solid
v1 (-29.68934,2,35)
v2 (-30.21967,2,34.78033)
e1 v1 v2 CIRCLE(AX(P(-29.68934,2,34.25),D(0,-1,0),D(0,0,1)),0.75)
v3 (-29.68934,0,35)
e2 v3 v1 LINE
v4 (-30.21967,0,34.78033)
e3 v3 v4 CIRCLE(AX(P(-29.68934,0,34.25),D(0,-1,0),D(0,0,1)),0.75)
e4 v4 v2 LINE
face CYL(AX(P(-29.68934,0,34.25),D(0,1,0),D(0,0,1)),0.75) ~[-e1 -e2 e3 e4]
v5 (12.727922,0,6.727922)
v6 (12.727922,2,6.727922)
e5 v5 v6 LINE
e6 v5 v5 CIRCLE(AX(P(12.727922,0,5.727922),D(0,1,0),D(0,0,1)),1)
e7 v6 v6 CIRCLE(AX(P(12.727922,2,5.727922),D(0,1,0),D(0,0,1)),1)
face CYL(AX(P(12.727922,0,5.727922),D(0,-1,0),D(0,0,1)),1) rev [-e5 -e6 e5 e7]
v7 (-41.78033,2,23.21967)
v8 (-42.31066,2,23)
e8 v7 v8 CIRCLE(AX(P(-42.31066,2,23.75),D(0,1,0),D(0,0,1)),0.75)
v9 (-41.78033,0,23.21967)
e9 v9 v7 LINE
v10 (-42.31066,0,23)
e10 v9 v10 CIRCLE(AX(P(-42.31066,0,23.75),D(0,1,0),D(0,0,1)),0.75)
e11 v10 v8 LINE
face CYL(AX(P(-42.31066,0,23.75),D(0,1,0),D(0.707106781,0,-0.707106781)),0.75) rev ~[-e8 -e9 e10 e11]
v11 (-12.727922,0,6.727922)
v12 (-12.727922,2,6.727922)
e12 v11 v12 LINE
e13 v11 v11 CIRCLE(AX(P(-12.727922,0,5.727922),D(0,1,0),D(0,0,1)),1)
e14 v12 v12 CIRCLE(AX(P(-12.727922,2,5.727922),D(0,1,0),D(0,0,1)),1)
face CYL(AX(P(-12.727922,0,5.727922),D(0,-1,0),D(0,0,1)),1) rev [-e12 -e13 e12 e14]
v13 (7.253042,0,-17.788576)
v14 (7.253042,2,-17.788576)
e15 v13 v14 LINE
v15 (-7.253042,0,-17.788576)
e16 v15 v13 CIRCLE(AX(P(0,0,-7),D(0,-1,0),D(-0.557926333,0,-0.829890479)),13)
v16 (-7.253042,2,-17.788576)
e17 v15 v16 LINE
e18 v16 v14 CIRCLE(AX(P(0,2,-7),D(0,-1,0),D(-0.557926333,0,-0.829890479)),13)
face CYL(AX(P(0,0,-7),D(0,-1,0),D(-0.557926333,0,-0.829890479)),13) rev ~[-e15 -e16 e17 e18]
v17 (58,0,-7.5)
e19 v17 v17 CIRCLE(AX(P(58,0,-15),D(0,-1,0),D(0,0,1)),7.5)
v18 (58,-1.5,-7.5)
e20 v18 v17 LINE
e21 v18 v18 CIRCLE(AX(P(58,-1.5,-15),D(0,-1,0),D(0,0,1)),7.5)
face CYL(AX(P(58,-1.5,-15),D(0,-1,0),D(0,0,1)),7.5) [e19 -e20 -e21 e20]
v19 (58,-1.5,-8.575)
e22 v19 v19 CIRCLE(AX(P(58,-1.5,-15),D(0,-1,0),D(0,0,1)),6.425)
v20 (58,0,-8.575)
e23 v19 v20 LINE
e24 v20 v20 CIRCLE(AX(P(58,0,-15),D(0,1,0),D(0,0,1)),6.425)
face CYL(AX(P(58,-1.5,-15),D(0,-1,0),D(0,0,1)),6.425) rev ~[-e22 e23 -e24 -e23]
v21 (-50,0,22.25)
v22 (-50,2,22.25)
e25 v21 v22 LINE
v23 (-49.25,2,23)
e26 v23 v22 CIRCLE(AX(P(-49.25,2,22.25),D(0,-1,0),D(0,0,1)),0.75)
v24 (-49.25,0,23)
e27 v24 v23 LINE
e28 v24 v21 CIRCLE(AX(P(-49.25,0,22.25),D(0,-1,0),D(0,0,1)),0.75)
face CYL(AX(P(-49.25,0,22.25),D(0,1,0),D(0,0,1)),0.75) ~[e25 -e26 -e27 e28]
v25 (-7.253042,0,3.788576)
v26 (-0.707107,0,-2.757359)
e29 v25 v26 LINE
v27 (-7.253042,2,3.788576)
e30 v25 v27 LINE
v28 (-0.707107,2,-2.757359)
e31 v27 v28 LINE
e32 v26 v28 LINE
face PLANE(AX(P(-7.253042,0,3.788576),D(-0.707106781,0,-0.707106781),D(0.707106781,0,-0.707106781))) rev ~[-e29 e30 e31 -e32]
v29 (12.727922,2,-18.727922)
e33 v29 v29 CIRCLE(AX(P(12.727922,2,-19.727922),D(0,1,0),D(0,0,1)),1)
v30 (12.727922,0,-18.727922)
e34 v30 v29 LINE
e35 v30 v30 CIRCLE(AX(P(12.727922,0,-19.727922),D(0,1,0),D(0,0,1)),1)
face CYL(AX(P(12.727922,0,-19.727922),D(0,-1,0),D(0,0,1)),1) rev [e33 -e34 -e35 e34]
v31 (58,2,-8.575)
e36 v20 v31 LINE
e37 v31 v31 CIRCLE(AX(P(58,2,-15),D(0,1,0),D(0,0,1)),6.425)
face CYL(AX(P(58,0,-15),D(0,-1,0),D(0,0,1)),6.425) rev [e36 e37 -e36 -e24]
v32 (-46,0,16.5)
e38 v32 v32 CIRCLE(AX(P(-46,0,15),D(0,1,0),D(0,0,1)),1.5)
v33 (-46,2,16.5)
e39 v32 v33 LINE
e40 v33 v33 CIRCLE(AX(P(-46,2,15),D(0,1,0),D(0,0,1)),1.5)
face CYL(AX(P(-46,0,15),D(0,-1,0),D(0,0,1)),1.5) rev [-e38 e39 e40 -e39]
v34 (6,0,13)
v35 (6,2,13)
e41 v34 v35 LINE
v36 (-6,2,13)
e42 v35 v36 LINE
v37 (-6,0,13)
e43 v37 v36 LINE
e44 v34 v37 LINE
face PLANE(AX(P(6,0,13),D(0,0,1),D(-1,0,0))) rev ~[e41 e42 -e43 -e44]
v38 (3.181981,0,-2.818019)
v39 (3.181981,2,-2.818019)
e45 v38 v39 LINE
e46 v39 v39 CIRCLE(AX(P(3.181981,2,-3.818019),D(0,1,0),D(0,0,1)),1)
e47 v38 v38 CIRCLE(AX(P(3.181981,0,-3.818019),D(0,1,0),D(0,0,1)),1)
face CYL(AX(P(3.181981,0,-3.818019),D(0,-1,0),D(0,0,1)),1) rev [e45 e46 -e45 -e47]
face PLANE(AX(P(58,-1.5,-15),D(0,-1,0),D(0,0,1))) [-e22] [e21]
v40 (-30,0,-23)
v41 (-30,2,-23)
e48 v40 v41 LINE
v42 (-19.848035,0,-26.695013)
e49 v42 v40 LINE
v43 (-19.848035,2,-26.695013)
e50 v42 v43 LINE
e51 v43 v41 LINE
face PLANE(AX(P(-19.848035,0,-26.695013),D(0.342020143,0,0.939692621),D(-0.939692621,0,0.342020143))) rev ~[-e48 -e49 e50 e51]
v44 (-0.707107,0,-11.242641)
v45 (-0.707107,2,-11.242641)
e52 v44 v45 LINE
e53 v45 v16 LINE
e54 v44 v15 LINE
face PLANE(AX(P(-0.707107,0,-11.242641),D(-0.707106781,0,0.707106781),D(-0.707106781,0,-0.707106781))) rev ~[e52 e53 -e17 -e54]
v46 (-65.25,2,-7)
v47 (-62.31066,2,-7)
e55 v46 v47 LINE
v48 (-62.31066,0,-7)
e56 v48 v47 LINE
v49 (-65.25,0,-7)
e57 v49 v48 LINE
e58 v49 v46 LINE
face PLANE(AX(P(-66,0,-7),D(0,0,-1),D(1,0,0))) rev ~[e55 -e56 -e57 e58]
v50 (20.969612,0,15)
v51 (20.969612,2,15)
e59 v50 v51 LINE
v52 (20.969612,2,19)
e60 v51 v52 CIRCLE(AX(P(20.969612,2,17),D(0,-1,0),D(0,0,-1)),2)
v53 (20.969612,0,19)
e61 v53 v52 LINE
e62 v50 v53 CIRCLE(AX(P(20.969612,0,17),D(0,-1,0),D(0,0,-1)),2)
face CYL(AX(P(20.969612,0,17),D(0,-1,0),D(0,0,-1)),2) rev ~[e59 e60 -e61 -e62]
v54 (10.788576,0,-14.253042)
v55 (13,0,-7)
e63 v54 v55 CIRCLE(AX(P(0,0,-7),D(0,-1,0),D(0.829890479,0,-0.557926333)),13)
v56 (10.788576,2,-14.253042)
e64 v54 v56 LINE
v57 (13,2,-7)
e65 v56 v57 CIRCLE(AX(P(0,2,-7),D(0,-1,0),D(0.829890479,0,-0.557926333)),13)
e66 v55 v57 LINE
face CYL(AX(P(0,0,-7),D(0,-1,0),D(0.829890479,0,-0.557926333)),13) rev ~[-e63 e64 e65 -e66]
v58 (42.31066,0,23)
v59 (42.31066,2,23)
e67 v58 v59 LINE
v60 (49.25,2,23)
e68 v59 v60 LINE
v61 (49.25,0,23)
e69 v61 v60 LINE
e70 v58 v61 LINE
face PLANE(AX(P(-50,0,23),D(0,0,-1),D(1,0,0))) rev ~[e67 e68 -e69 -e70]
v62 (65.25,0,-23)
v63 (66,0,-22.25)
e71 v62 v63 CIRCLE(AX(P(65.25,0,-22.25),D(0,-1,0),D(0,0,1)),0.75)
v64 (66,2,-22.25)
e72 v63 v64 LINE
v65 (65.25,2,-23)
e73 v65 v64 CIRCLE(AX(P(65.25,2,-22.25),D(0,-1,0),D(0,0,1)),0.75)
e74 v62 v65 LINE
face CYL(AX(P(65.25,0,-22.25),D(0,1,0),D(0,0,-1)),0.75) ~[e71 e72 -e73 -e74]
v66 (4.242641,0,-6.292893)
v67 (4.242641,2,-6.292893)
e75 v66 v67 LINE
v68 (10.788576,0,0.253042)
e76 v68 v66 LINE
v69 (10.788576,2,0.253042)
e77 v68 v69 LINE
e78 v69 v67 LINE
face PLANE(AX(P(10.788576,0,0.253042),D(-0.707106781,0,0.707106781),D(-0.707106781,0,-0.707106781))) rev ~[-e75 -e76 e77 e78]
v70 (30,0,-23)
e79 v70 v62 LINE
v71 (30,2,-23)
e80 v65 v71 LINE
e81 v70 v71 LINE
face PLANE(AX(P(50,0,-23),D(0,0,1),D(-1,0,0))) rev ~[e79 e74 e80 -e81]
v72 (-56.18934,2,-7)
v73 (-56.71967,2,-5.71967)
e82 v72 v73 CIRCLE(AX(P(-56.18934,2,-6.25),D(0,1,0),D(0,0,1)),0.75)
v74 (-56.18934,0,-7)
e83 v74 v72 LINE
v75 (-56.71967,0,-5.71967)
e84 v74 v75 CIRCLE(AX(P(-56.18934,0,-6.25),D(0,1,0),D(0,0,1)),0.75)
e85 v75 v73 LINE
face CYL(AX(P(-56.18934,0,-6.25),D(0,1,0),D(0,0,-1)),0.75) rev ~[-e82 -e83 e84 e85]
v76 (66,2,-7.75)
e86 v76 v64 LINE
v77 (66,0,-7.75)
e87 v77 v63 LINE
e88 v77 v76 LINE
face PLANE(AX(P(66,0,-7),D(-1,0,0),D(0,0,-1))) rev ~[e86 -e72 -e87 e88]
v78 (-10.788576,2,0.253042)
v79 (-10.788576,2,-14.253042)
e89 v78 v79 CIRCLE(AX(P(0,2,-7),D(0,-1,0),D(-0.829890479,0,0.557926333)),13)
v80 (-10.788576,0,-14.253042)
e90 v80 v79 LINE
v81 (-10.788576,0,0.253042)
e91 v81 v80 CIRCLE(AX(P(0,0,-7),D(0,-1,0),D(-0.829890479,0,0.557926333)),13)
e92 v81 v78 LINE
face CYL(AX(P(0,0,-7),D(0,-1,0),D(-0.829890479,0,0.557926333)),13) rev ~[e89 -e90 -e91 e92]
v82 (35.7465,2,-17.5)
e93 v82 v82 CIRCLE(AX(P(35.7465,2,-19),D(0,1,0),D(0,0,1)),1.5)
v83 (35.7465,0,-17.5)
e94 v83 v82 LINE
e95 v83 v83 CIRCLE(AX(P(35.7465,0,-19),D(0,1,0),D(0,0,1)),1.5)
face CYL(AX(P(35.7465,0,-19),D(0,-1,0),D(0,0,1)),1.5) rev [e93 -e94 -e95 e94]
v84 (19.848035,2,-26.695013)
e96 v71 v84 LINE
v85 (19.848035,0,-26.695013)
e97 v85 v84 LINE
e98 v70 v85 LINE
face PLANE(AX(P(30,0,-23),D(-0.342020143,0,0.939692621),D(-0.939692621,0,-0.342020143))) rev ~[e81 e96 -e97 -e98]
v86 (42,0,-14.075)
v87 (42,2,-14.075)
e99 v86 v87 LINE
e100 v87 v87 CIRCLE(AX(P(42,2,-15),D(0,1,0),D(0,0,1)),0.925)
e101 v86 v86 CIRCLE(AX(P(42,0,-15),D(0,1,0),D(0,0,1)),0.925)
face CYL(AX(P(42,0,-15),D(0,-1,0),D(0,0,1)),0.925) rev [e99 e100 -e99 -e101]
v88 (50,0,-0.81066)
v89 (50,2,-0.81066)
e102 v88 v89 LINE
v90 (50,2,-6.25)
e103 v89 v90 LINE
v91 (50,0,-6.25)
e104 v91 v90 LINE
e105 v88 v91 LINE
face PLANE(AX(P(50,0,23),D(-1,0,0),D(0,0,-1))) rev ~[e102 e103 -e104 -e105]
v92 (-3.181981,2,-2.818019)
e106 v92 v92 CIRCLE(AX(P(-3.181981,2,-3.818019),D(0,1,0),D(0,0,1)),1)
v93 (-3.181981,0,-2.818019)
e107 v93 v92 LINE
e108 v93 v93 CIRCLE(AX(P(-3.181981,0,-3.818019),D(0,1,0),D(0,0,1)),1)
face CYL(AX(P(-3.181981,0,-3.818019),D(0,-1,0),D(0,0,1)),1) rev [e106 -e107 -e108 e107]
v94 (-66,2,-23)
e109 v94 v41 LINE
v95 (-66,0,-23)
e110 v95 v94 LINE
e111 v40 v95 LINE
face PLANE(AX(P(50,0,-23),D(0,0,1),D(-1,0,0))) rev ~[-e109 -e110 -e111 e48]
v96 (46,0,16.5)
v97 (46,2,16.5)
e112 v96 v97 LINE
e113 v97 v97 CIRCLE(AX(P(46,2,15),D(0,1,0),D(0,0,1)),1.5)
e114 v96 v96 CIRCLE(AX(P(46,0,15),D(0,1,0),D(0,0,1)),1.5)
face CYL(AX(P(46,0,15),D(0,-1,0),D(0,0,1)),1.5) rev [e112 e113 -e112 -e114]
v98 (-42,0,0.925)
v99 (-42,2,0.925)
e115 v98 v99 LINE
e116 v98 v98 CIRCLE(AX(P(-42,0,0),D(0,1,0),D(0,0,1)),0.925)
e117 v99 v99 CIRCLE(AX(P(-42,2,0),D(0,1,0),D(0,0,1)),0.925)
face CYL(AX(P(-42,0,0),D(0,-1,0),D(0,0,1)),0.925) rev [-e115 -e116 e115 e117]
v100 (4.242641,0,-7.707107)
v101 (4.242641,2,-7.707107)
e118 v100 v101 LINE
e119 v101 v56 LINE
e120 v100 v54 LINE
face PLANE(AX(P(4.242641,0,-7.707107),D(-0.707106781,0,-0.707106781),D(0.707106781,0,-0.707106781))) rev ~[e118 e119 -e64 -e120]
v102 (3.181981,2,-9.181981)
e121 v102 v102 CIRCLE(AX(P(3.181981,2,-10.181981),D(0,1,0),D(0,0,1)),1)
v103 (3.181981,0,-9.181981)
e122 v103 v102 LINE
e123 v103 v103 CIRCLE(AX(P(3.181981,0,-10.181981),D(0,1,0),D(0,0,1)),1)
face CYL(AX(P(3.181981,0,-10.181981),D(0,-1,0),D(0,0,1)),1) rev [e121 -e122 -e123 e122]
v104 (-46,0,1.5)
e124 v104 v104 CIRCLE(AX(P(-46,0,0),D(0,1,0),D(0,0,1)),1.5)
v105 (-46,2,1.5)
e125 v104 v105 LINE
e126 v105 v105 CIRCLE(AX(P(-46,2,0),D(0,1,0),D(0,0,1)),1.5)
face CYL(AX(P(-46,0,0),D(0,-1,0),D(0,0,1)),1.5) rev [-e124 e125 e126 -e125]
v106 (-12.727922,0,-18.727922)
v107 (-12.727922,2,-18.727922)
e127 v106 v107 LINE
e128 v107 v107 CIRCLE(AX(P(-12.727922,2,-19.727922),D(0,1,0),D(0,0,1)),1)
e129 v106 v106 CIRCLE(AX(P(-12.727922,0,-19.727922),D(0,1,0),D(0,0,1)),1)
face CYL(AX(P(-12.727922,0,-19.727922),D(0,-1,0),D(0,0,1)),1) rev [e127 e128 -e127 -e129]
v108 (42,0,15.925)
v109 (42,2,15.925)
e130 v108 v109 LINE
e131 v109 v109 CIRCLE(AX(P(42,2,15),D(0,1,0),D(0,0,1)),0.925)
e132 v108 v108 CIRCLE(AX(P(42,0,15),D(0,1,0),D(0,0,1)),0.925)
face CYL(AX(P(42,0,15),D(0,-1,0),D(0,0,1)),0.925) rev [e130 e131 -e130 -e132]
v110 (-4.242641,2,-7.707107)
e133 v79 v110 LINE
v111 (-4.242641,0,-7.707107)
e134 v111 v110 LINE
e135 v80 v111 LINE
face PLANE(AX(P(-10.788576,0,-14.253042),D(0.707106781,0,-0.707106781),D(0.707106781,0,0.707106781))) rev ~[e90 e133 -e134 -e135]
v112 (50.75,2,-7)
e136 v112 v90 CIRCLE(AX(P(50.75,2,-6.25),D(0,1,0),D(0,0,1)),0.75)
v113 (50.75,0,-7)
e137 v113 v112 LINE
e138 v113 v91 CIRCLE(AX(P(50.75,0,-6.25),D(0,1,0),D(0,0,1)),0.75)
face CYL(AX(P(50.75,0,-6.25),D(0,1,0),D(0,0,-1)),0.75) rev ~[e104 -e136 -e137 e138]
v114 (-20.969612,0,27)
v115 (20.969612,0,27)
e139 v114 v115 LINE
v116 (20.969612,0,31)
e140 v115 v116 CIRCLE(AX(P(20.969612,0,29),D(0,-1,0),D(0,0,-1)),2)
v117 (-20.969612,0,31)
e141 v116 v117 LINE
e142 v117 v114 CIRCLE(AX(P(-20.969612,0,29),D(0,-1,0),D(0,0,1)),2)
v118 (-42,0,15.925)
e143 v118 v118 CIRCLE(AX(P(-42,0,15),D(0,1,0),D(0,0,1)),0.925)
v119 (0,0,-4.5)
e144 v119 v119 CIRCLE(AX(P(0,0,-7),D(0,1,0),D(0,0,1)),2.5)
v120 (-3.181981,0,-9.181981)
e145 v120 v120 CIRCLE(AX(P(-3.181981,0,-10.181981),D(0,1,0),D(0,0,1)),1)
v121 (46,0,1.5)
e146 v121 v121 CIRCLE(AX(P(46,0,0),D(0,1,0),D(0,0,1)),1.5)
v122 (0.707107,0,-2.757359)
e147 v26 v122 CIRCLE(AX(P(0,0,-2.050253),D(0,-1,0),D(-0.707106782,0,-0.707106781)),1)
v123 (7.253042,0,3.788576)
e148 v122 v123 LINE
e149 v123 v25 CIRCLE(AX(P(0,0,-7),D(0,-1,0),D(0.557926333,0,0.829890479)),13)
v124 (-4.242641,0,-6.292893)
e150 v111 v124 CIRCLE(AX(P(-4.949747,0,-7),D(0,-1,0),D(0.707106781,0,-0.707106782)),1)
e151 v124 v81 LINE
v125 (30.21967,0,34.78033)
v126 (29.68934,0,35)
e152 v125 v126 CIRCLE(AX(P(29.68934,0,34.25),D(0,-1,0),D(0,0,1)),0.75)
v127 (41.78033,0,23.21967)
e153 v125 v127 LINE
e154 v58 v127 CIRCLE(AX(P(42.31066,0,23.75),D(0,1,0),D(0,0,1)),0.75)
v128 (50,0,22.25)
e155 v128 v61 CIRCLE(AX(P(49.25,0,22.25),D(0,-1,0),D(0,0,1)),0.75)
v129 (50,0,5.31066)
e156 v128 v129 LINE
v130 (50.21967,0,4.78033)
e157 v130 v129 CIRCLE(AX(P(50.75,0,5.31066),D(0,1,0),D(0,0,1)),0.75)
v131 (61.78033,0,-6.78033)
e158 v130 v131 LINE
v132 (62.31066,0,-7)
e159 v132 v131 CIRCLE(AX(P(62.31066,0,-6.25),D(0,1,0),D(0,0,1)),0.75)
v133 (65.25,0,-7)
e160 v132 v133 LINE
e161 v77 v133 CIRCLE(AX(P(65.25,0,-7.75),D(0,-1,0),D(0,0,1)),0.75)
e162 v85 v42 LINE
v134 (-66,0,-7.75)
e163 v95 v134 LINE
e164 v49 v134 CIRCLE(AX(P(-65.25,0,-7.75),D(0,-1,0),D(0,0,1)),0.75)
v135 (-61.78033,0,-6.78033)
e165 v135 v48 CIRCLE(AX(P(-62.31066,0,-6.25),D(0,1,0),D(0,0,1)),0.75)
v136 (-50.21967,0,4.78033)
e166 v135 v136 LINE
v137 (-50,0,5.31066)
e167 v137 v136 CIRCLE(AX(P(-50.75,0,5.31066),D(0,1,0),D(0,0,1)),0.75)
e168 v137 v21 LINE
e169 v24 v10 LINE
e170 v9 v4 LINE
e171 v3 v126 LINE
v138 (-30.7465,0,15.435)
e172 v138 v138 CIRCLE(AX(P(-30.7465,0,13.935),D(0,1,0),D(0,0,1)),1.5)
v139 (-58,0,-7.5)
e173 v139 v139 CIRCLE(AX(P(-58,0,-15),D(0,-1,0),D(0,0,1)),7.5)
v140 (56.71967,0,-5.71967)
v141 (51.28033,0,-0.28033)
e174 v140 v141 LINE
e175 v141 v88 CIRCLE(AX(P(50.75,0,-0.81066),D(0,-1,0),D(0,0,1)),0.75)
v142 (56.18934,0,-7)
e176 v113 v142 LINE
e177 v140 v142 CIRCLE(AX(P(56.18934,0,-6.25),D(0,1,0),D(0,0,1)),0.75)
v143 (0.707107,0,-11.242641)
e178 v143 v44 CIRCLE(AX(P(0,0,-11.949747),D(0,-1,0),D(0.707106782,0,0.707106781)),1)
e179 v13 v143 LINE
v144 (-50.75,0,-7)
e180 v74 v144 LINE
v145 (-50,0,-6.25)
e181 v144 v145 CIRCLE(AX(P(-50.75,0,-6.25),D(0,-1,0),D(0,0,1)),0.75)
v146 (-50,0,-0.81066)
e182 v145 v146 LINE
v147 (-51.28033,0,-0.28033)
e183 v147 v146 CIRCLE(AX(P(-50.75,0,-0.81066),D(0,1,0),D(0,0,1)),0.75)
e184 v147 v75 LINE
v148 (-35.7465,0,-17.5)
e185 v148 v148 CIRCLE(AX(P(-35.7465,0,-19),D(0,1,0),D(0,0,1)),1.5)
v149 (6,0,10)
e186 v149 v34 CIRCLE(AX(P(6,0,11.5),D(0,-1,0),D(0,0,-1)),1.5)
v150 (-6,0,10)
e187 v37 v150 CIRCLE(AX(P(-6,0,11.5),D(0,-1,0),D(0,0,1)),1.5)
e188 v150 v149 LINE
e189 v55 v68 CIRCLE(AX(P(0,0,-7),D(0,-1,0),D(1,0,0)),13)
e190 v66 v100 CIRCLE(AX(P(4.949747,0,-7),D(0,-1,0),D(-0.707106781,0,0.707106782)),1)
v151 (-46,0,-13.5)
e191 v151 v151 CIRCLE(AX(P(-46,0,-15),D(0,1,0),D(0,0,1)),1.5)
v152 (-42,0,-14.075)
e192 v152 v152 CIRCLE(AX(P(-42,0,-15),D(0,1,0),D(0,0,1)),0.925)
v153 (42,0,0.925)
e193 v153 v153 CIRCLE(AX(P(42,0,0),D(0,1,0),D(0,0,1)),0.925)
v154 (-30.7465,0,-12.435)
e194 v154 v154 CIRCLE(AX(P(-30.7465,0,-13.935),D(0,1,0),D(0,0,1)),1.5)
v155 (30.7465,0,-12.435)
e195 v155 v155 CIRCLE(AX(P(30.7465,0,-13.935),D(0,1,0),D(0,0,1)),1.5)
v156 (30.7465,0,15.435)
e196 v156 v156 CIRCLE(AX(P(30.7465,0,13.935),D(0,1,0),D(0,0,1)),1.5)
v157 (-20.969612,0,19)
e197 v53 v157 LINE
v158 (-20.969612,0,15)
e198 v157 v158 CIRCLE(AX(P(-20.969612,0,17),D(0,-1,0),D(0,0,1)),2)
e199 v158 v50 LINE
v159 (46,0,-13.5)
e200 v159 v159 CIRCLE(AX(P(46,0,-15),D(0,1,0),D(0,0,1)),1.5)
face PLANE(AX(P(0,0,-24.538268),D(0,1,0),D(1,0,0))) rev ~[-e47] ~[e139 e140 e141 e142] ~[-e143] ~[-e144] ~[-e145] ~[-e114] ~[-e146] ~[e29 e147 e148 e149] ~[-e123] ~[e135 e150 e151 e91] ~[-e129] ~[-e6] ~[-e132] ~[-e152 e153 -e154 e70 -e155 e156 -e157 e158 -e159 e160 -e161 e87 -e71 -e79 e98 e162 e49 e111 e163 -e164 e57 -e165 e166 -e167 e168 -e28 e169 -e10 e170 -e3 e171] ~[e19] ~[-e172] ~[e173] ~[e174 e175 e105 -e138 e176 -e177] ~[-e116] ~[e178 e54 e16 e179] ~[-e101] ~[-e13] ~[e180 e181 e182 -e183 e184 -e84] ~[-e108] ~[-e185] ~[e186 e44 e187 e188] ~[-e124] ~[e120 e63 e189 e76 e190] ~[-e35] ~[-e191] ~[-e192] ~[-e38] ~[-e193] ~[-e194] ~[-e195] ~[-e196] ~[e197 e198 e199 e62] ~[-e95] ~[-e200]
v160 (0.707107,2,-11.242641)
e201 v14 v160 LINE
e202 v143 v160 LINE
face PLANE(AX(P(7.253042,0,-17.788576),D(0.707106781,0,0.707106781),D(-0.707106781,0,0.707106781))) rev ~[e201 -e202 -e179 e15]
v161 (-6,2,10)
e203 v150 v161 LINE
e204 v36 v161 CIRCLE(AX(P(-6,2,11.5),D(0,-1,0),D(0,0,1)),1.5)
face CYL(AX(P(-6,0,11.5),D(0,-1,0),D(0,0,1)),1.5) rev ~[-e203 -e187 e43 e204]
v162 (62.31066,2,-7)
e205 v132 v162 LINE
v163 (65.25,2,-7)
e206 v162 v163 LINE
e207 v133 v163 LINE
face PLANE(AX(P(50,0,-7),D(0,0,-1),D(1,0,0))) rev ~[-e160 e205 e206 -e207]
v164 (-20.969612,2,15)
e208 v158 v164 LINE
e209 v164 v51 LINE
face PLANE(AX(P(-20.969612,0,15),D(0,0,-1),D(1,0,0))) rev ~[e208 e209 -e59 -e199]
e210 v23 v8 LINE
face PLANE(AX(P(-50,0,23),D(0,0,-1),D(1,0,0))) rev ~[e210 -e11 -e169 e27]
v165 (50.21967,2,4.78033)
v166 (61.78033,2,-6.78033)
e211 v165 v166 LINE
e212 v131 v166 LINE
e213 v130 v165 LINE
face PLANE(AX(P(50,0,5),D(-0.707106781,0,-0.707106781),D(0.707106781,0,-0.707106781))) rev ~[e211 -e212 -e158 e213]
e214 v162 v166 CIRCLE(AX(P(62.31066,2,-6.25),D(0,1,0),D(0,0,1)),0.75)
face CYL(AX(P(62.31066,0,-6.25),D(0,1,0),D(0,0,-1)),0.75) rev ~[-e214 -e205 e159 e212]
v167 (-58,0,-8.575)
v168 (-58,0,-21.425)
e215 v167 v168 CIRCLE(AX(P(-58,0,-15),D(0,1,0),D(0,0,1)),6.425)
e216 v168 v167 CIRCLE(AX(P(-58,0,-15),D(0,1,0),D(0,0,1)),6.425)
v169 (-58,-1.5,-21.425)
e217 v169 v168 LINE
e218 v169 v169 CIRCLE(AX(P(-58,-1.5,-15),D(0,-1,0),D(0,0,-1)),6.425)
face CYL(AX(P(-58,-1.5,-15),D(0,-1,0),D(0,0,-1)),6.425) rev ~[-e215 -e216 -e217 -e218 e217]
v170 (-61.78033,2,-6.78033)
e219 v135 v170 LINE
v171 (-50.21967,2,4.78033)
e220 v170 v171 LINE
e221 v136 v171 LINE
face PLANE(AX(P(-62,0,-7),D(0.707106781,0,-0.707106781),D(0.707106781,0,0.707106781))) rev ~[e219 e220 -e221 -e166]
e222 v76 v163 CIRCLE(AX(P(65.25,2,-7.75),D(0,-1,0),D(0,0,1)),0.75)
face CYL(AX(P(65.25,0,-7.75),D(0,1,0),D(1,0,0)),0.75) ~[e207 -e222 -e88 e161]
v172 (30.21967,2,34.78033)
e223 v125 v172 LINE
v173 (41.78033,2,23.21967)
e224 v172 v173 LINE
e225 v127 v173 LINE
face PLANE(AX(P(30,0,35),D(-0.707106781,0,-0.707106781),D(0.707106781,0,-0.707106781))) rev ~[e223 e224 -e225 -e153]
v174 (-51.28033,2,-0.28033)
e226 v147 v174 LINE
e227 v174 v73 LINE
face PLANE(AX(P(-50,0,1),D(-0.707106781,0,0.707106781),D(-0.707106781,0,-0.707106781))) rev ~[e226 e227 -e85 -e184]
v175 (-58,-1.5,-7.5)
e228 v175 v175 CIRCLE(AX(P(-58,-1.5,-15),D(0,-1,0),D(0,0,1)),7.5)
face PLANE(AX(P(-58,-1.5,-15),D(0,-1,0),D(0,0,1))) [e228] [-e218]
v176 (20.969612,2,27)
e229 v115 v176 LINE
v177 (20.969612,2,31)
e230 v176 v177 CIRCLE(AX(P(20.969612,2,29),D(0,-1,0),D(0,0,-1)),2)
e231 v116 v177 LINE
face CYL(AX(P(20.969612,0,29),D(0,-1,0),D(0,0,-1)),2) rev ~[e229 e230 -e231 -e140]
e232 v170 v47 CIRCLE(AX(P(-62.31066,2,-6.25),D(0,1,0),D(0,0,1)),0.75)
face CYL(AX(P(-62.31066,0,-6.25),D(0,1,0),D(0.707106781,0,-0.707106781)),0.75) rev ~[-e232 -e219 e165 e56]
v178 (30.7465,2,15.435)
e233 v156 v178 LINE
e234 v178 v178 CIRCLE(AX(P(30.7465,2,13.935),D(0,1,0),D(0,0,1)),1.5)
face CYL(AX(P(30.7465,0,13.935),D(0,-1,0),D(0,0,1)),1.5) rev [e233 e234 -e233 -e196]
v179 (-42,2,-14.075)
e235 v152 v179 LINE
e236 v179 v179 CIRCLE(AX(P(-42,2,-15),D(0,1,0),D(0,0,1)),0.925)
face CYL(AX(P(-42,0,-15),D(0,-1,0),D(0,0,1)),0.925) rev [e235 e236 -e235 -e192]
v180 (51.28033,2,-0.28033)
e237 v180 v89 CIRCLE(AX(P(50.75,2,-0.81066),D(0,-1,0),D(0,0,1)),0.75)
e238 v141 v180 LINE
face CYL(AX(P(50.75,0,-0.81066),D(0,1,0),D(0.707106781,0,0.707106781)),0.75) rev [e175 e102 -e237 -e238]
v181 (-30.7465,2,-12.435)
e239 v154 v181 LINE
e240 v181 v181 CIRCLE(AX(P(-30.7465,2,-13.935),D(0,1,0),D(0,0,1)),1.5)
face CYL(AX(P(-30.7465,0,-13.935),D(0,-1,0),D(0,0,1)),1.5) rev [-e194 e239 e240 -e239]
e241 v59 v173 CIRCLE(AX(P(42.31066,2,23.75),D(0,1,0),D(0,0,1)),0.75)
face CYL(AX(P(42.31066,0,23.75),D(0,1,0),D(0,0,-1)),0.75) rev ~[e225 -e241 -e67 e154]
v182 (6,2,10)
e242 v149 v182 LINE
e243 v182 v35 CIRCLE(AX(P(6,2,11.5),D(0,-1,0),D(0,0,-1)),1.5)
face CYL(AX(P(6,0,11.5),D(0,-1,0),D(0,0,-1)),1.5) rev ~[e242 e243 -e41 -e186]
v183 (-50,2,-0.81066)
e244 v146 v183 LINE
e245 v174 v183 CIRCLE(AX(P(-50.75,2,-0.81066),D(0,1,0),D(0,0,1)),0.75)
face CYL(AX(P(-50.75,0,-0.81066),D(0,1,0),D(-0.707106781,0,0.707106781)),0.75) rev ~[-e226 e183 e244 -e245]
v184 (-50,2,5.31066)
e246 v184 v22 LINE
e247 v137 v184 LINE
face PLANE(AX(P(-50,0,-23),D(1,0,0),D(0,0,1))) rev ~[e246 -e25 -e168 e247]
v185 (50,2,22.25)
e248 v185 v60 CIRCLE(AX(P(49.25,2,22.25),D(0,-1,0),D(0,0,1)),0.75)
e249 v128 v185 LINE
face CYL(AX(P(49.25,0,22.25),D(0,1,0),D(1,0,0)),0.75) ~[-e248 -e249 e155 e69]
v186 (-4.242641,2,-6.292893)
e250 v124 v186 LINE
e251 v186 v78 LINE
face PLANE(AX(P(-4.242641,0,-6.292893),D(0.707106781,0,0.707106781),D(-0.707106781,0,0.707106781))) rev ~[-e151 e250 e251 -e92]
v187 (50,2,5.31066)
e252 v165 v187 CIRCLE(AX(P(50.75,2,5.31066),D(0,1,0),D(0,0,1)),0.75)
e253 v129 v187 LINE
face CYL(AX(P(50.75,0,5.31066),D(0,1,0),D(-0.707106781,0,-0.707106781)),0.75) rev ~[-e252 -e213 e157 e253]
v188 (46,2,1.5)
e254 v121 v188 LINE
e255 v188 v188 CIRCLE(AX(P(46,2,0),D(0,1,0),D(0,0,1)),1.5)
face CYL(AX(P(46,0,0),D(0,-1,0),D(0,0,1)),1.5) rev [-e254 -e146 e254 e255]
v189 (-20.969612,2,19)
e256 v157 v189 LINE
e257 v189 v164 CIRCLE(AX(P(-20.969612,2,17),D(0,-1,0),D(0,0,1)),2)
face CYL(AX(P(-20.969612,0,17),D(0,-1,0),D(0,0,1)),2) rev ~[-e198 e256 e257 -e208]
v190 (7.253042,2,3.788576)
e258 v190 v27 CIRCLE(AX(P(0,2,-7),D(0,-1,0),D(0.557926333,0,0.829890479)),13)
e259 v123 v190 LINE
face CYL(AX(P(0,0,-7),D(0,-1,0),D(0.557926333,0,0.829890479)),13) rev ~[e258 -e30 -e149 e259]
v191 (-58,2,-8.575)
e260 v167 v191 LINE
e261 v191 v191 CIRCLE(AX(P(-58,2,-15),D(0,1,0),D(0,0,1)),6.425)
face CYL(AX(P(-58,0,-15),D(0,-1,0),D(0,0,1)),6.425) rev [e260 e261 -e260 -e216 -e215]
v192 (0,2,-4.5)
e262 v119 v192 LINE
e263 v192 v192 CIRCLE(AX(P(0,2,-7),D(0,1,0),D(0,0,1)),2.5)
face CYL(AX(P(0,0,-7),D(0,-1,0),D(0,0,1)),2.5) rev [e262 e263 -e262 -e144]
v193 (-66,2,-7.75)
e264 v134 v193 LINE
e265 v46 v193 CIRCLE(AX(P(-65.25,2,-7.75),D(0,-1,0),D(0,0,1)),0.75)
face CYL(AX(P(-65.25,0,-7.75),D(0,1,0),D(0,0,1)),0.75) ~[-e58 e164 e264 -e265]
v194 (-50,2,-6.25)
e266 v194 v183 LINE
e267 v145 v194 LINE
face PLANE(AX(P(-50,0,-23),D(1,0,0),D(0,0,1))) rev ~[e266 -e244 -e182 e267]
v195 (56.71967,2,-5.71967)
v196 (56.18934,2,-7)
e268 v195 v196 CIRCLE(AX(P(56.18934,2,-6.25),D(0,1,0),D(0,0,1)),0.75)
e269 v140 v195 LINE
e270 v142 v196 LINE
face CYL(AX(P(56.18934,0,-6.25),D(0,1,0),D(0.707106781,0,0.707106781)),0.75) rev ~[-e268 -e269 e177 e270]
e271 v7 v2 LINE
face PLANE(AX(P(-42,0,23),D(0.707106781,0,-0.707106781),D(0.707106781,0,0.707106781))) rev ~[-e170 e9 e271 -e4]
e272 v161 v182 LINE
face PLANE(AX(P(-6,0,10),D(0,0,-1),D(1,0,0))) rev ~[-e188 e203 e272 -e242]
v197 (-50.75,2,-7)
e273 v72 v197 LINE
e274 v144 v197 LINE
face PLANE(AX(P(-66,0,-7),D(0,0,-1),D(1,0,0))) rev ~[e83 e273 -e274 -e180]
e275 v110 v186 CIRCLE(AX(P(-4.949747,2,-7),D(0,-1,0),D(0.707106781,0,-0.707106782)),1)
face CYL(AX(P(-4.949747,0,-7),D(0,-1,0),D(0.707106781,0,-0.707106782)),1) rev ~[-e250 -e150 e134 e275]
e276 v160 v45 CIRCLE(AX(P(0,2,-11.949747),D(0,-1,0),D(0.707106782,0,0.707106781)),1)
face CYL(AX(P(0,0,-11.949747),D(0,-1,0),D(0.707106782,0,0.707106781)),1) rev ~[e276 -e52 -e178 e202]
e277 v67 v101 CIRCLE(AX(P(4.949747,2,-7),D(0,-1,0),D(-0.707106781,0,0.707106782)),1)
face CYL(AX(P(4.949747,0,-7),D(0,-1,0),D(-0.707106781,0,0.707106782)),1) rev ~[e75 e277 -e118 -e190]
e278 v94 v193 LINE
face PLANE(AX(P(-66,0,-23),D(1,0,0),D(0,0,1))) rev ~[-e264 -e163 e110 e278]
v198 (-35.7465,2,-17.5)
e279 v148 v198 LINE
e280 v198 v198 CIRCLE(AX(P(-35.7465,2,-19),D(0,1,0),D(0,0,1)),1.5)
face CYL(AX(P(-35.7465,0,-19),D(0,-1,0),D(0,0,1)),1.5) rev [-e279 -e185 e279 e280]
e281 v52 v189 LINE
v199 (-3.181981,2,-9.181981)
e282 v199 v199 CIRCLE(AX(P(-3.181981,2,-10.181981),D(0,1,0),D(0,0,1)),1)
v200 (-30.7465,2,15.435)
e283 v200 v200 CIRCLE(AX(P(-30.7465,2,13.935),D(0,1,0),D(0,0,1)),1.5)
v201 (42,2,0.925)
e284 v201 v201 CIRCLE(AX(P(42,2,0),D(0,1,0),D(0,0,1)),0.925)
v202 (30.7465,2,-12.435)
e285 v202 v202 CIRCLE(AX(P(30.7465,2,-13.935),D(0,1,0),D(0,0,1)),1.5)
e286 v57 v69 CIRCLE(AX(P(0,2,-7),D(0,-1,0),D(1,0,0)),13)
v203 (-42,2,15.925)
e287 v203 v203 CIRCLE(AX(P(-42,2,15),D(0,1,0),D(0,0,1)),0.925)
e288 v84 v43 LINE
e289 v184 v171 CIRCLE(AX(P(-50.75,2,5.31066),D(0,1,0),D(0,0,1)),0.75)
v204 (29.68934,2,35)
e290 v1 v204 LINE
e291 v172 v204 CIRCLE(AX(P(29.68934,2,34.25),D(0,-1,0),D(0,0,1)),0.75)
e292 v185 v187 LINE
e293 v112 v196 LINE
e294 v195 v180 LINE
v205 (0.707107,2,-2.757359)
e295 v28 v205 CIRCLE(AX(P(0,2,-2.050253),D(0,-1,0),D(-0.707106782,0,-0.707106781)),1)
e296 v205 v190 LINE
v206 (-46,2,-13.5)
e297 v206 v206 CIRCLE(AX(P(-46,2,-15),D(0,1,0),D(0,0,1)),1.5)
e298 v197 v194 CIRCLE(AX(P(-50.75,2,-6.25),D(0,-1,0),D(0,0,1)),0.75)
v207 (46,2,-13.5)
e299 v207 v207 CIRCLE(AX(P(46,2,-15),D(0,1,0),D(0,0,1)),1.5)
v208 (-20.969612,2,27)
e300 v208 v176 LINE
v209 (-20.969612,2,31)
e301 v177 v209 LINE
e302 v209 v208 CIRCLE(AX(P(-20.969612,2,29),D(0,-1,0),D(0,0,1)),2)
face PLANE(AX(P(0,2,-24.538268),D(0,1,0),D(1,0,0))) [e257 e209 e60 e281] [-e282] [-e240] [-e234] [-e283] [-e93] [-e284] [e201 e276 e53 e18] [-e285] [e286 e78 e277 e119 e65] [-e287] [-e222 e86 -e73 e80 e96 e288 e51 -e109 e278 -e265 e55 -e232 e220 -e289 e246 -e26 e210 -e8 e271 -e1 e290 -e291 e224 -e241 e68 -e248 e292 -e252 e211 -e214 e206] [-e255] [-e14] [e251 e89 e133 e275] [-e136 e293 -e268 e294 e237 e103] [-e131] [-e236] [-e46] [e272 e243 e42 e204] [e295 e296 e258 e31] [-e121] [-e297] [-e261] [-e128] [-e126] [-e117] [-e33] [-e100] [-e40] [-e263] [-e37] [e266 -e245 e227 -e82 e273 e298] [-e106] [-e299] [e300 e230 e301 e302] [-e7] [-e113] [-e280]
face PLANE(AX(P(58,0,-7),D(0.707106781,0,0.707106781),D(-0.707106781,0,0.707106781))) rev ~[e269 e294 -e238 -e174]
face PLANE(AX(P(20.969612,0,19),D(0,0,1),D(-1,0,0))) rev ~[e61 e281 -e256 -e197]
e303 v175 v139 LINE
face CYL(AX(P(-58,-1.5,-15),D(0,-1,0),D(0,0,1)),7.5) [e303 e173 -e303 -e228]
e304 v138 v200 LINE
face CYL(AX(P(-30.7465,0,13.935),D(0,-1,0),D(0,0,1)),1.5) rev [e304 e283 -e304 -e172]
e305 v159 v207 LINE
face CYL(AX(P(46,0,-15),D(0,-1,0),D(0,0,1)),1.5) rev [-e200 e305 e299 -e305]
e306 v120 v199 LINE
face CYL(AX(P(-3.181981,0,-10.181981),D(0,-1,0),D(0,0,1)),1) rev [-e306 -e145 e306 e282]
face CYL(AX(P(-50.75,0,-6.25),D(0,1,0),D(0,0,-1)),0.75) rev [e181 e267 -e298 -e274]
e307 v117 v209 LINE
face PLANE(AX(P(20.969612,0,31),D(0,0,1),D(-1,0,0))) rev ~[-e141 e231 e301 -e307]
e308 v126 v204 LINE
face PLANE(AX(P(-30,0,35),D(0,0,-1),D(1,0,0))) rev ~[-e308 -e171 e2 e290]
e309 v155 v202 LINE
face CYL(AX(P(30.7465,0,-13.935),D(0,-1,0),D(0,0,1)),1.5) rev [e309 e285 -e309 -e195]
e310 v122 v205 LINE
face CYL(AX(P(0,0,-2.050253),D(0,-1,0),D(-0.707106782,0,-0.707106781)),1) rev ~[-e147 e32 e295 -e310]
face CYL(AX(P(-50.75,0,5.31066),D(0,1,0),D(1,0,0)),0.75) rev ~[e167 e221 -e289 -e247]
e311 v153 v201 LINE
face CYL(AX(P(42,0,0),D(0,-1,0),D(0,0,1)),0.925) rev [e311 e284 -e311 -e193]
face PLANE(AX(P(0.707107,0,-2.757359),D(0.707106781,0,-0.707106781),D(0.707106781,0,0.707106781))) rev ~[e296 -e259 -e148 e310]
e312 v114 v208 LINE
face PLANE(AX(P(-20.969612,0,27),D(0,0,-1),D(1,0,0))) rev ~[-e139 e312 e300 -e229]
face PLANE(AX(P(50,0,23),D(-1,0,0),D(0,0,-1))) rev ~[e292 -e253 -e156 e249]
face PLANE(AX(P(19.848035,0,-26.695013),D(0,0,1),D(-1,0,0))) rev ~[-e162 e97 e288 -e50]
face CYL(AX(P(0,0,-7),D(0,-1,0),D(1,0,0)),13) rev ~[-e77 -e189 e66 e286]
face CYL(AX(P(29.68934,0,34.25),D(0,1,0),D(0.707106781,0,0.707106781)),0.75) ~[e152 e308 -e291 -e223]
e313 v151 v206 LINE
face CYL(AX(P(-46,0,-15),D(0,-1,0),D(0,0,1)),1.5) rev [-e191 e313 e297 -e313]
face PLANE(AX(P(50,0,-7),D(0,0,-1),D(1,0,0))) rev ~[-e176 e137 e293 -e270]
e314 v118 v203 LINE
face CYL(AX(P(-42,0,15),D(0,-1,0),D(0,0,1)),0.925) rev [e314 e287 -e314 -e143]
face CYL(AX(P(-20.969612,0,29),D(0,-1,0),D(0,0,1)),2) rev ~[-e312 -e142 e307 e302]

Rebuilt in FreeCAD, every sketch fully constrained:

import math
import FreeCAD as App
import Part
import Sketcher
Q = App.Units.Quantity


def edges_at(feature, points):
    """Names of the edges that pass closest to the given points."""
    edges = feature.Shape.Edges
    near = lambda p: min(range(len(edges)), key=lambda i: edges[i].distToShape(Part.Vertex(*p))[0])
    return sorted({f"Edge{near(p) + 1}" for p in points})


def add_polygon(sketch, points):
    """Adds a closed chain of lines whose ends are joined by coincident constraints."""
    first, n = sketch.GeometryCount, len(points)
    for a, b in zip(points, points[1:] + points[:1]):
        sketch.addGeometry(Part.LineSegment(App.Vector(*a, 0), App.Vector(*b, 0)), False)
    for i in range(n):
        sketch.addConstraint(Sketcher.Constraint("Coincident", first + i, 2, first + (i + 1) % n, 1))

doc = App.newDocument("Part")
body = doc.addObject("PartDesign::Body", "Body")

# Sketch on XZ plane
sketch1 = body.newObject("Sketcher::SketchObject", "Sketch")
sketch1.AttachmentSupport = (doc.getObject("XZ_Plane"), [""])
sketch1.MapMode = "FlatFace"
add_polygon(sketch1, [(-19.848035, -26.695013), (-30, -23), (-66, -23), (-66, -7), (-62, -7), (-50, 5), (-50, 23), (-42, 23), (-30, 35), (30, 35), (42, 23), (50, 23), (50, 5), (62, -7), (66, -7), (66, -23), (30, -23), (19.848035, -26.695013)])  # lines 0-17
add_polygon(sketch1, [(-50, -7), (-50, 1), (-58, -7)])  # lines 18-20
sketch1.addGeometry(Part.Circle(App.Vector(35.7465, -19, 0), App.Vector(0, 0, 1), 1.5), False)  # 21
add_polygon(sketch1, [(50, 1), (50, -7), (58, -7)])  # lines 22-24
sketch1.addGeometry(Part.Circle(App.Vector(-46, 15, 0), App.Vector(0, 0, 1), 1.5), False)  # 25
sketch1.addGeometry(Part.Circle(App.Vector(-42, 15, 0), App.Vector(0, 0, 1), 0.925), False)  # 26
sketch1.addGeometry(Part.Circle(App.Vector(-30.7465, 13.935, 0), App.Vector(0, 0, 1), 1.5), False)  # 27
sketch1.addGeometry(Part.Circle(App.Vector(-46, 0, 0), App.Vector(0, 0, 1), 1.5), False)  # 28
sketch1.addGeometry(Part.Circle(App.Vector(-42, 0, 0), App.Vector(0, 0, 1), 0.925), False)  # 29
sketch1.addGeometry(Part.Circle(App.Vector(-12.727922, 5.727922, 0), App.Vector(0, 0, 1), 1), False)  # 30
sketch1.addGeometry(Part.LineSegment(App.Vector(20.969612, 19, 0), App.Vector(-20.969612, 19, 0)), False)  # 31
sketch1.addGeometry(Part.ArcOfCircle(Part.Circle(App.Vector(-20.969612, 17, 0), App.Vector(0, 0, 1), 2), math.radians(90), math.radians(270)), False)  # 32
sketch1.addGeometry(Part.LineSegment(App.Vector(-20.969612, 15, 0), App.Vector(20.969612, 15, 0)), False)  # 33
sketch1.addGeometry(Part.ArcOfCircle(Part.Circle(App.Vector(20.969612, 17, 0), App.Vector(0, 0, 1), 2), math.radians(-90), math.radians(90)), False)  # 34
sketch1.addGeometry(Part.LineSegment(App.Vector(6, 13, 0), App.Vector(-6, 13, 0)), False)  # 35
sketch1.addGeometry(Part.ArcOfCircle(Part.Circle(App.Vector(-6, 11.5, 0), App.Vector(0, 0, 1), 1.5), math.radians(90), math.radians(270)), False)  # 36
sketch1.addGeometry(Part.LineSegment(App.Vector(-6, 10, 0), App.Vector(6, 10, 0)), False)  # 37
sketch1.addGeometry(Part.ArcOfCircle(Part.Circle(App.Vector(6, 11.5, 0), App.Vector(0, 0, 1), 1.5), math.radians(-90), math.radians(90)), False)  # 38
sketch1.addGeometry(Part.Circle(App.Vector(30.7465, 13.935, 0), App.Vector(0, 0, 1), 1.5), False)  # 39
sketch1.addGeometry(Part.Circle(App.Vector(42, 15, 0), App.Vector(0, 0, 1), 0.925), False)  # 40
sketch1.addGeometry(Part.Circle(App.Vector(46, 15, 0), App.Vector(0, 0, 1), 1.5), False)  # 41
sketch1.addGeometry(Part.Circle(App.Vector(12.727922, 5.727922, 0), App.Vector(0, 0, 1), 1), False)  # 42
sketch1.addGeometry(Part.Circle(App.Vector(42, 0, 0), App.Vector(0, 0, 1), 0.925), False)  # 43
sketch1.addGeometry(Part.Circle(App.Vector(46, 0, 0), App.Vector(0, 0, 1), 1.5), False)  # 44
sketch1.addGeometry(Part.Circle(App.Vector(-46, -15, 0), App.Vector(0, 0, 1), 1.5), False)  # 45
sketch1.addGeometry(Part.Circle(App.Vector(-42, -15, 0), App.Vector(0, 0, 1), 0.925), False)  # 46
sketch1.addGeometry(Part.Circle(App.Vector(-30.7465, -13.935, 0), App.Vector(0, 0, 1), 1.5), False)  # 47
sketch1.addGeometry(Part.Circle(App.Vector(-35.7465, -19, 0), App.Vector(0, 0, 1), 1.5), False)  # 48
sketch1.addGeometry(Part.Circle(App.Vector(-12.727922, -19.727922, 0), App.Vector(0, 0, 1), 1), False)  # 49
sketch1.addGeometry(Part.Circle(App.Vector(12.727922, -19.727922, 0), App.Vector(0, 0, 1), 1), False)  # 50
sketch1.addGeometry(Part.Circle(App.Vector(30.7465, -13.935, 0), App.Vector(0, 0, 1), 1.5), False)  # 51
sketch1.addGeometry(Part.Circle(App.Vector(42, -15, 0), App.Vector(0, 0, 1), 0.925), False)  # 52
sketch1.addGeometry(Part.Circle(App.Vector(46, -15, 0), App.Vector(0, 0, 1), 1.5), False)  # 53
sketch1.addGeometry(Part.Circle(App.Vector(-58, -15, 0), App.Vector(0, 0, 1), 6.425), False)  # 54
sketch1.addGeometry(Part.ArcOfCircle(Part.Circle(App.Vector(-20.969612, 29, 0), App.Vector(0, 0, 1), 2), math.radians(90), math.radians(270)), False)  # 55
sketch1.addGeometry(Part.LineSegment(App.Vector(-20.969612, 27, 0), App.Vector(20.969612, 27, 0)), False)  # 56
sketch1.addGeometry(Part.ArcOfCircle(Part.Circle(App.Vector(20.969612, 29, 0), App.Vector(0, 0, 1), 2), math.radians(-90), math.radians(90)), False)  # 57
sketch1.addGeometry(Part.LineSegment(App.Vector(20.969612, 31, 0), App.Vector(-20.969612, 31, 0)), False)  # 58
sketch1.addGeometry(Part.Circle(App.Vector(58, -15, 0), App.Vector(0, 0, 1), 6.425), False)  # 59
sketch1.addGeometry(Part.ArcOfCircle(Part.Circle(App.Vector(0, -7, 0), App.Vector(0, 0, 1), 13), math.radians(0), math.radians(33.912511)), False)  # 60
sketch1.addGeometry(Part.LineSegment(App.Vector(10.788576, 0.253042, 0), App.Vector(4.242641, -6.292893, 0)), False)  # 61
sketch1.addGeometry(Part.ArcOfCircle(Part.Circle(App.Vector(4.949747, -7, 0), App.Vector(0, 0, 1), 1), math.radians(135), math.radians(225)), False)  # 62
sketch1.addGeometry(Part.LineSegment(App.Vector(4.242641, -7.707107, 0), App.Vector(10.788576, -14.253042, 0)), False)  # 63
sketch1.addGeometry(Part.ArcOfCircle(Part.Circle(App.Vector(0, -7, 0), App.Vector(0, 0, 1), 13), math.radians(-33.912511), math.radians(0)), False)  # 64
sketch1.addGeometry(Part.ArcOfCircle(Part.Circle(App.Vector(0, -7, 0), App.Vector(0, 0, 1), 13), math.radians(-123.912511), math.radians(-56.087489)), False)  # 65
sketch1.addGeometry(Part.LineSegment(App.Vector(7.253042, -17.788576, 0), App.Vector(0.707107, -11.242641, 0)), False)  # 66
sketch1.addGeometry(Part.ArcOfCircle(Part.Circle(App.Vector(0, -11.949747, 0), App.Vector(0, 0, 1), 1), math.radians(45), math.radians(135)), False)  # 67
sketch1.addGeometry(Part.LineSegment(App.Vector(-0.707107, -11.242641, 0), App.Vector(-7.253042, -17.788576, 0)), False)  # 68
sketch1.addGeometry(Part.ArcOfCircle(Part.Circle(App.Vector(0, -7, 0), App.Vector(0, 0, 1), 13), math.radians(146.087489), math.radians(213.912511)), False)  # 69
sketch1.addGeometry(Part.LineSegment(App.Vector(-10.788576, -14.253042, 0), App.Vector(-4.242641, -7.707107, 0)), False)  # 70
sketch1.addGeometry(Part.ArcOfCircle(Part.Circle(App.Vector(-4.949747, -7, 0), App.Vector(0, 0, 1), 1), math.radians(-45), math.radians(45)), False)  # 71
sketch1.addGeometry(Part.LineSegment(App.Vector(-4.242641, -6.292893, 0), App.Vector(-10.788576, 0.253042, 0)), False)  # 72
sketch1.addGeometry(Part.ArcOfCircle(Part.Circle(App.Vector(0, -7, 0), App.Vector(0, 0, 1), 13), math.radians(56.087489), math.radians(123.912511)), False)  # 73
sketch1.addGeometry(Part.LineSegment(App.Vector(-7.253042, 3.788576, 0), App.Vector(-0.707107, -2.757359, 0)), False)  # 74
sketch1.addGeometry(Part.ArcOfCircle(Part.Circle(App.Vector(0, -2.050253, 0), App.Vector(0, 0, 1), 1), math.radians(-135), math.radians(-45)), False)  # 75
sketch1.addGeometry(Part.LineSegment(App.Vector(0.707107, -2.757359, 0), App.Vector(7.253042, 3.788576, 0)), False)  # 76
sketch1.addGeometry(Part.Circle(App.Vector(3.181981, -3.818019, 0), App.Vector(0, 0, 1), 1), False)  # 77
sketch1.addGeometry(Part.Circle(App.Vector(-3.181981, -10.181981, 0), App.Vector(0, 0, 1), 1), False)  # 78
sketch1.addGeometry(Part.Circle(App.Vector(3.181981, -10.181981, 0), App.Vector(0, 0, 1), 1), False)  # 79
sketch1.addGeometry(Part.Circle(App.Vector(0, -7, 0), App.Vector(0, 0, 1), 2.5), False)  # 80
sketch1.addGeometry(Part.Circle(App.Vector(-3.181981, -3.818019, 0), App.Vector(0, 0, 1), 1), False)  # 81
sketch1.addConstraint([
    Sketcher.Constraint("Tangent", 31, 2, 32, 1),
    Sketcher.Constraint("Tangent", 32, 2, 33, 1),
    Sketcher.Constraint("Tangent", 33, 2, 34, 1),
    Sketcher.Constraint("Tangent", 34, 2, 31, 1),
    Sketcher.Constraint("Tangent", 35, 2, 36, 1),
    Sketcher.Constraint("Tangent", 36, 2, 37, 1),
    Sketcher.Constraint("Tangent", 37, 2, 38, 1),
    Sketcher.Constraint("Tangent", 38, 2, 35, 1),
    Sketcher.Constraint("Tangent", 55, 2, 56, 1),
    Sketcher.Constraint("Tangent", 56, 2, 57, 1),
    Sketcher.Constraint("Tangent", 57, 2, 58, 1),
    Sketcher.Constraint("Tangent", 58, 2, 55, 1),
    Sketcher.Constraint("Coincident", 60, 2, 61, 1),
    Sketcher.Constraint("Tangent", 61, 2, 62, 1),
    Sketcher.Constraint("Tangent", 62, 2, 63, 1),
    Sketcher.Constraint("Coincident", 63, 2, 64, 1),
    Sketcher.Constraint("Tangent", 64, 2, 60, 1),
    Sketcher.Constraint("Coincident", 65, 2, 66, 1),
    Sketcher.Constraint("Tangent", 66, 2, 67, 1),
    Sketcher.Constraint("Tangent", 67, 2, 68, 1),
    Sketcher.Constraint("Coincident", 68, 2, 65, 1),
    Sketcher.Constraint("Coincident", 69, 2, 70, 1),
    Sketcher.Constraint("Tangent", 70, 2, 71, 1),
    Sketcher.Constraint("Tangent", 71, 2, 72, 1),
    Sketcher.Constraint("Coincident", 72, 2, 69, 1),
    Sketcher.Constraint("Coincident", 73, 2, 74, 1),
    Sketcher.Constraint("Tangent", 74, 2, 75, 1),
    Sketcher.Constraint("Tangent", 75, 2, 76, 1),
    Sketcher.Constraint("Coincident", 76, 2, 73, 1),
    Sketcher.Constraint("Horizontal", 1),
    Sketcher.Constraint("Vertical", 2),
    Sketcher.Constraint("Horizontal", 3),
    Sketcher.Constraint("Vertical", 5),
    Sketcher.Constraint("Horizontal", 6),
    Sketcher.Constraint("Horizontal", 8),
    Sketcher.Constraint("Horizontal", 10),
    Sketcher.Constraint("Vertical", 11),
    Sketcher.Constraint("Horizontal", 13),
    Sketcher.Constraint("Vertical", 14),
    Sketcher.Constraint("Horizontal", 15),
    Sketcher.Constraint("Horizontal", 17),
    Sketcher.Constraint("Vertical", 18),
    Sketcher.Constraint("Horizontal", 20),
    Sketcher.Constraint("Vertical", 22),
    Sketcher.Constraint("Horizontal", 23),
    Sketcher.Constraint("Horizontal", 31),
    Sketcher.Constraint("Horizontal", 33),
    Sketcher.Constraint("Horizontal", 35),
    Sketcher.Constraint("Horizontal", 37),
    Sketcher.Constraint("Horizontal", 56),
    Sketcher.Constraint("Horizontal", 58),
    Sketcher.Constraint("Coincident", 65, 3, 60, 3),
    Sketcher.Constraint("Coincident", 69, 3, 60, 3),
    Sketcher.Constraint("Coincident", 73, 3, 60, 3),
    Sketcher.Constraint("Coincident", 80, 3, 60, 3),
    Sketcher.Constraint("Equal", 21, 25),
    Sketcher.Constraint("Equal", 25, 27),
    Sketcher.Constraint("Equal", 27, 28),
    Sketcher.Constraint("Equal", 26, 29),
    Sketcher.Constraint("Equal", 28, 36),
    Sketcher.Constraint("Equal", 38, 39),
    Sketcher.Constraint("Equal", 29, 40),
    Sketcher.Constraint("Equal", 39, 41),
    Sketcher.Constraint("Equal", 30, 42),
    Sketcher.Constraint("Equal", 40, 43),
    Sketcher.Constraint("Equal", 41, 44),
    Sketcher.Constraint("Equal", 44, 45),
    Sketcher.Constraint("Equal", 43, 46),
    Sketcher.Constraint("Equal", 45, 47),
    Sketcher.Constraint("Equal", 47, 48),
    Sketcher.Constraint("Equal", 42, 49),
    Sketcher.Constraint("Equal", 49, 50),
    Sketcher.Constraint("Equal", 48, 51),
    Sketcher.Constraint("Equal", 46, 52),
    Sketcher.Constraint("Equal", 51, 53),
    Sketcher.Constraint("Equal", 34, 55),
    Sketcher.Constraint("Equal", 54, 59),
    Sketcher.Constraint("Equal", 50, 62),
    Sketcher.Constraint("Equal", 60, 64),
    Sketcher.Constraint("Equal", 64, 65),
    Sketcher.Constraint("Equal", 62, 67),
    Sketcher.Constraint("Equal", 65, 69),
    Sketcher.Constraint("Equal", 67, 71),
    Sketcher.Constraint("Equal", 69, 73),
    Sketcher.Constraint("Equal", 71, 75),
    Sketcher.Constraint("Equal", 75, 77),
    Sketcher.Constraint("Equal", 77, 78),
    Sketcher.Constraint("Equal", 78, 79),
    Sketcher.Constraint("Equal", 79, 81),
    Sketcher.Constraint("Symmetric", 29, 3, 43, 3, -1, 1),
    Sketcher.Constraint("Symmetric", 28, 3, 44, 3, -1, 1),
    Sketcher.Constraint("Symmetric", 41, 3, 45, 3, -1, 1),
    Sketcher.Constraint("Symmetric", 40, 3, 46, 3, -1, 1),
    Sketcher.Constraint("Symmetric", 39, 3, 47, 3, -1, 1),
    Sketcher.Constraint("Symmetric", 27, 3, 51, 3, -1, 1),
    Sketcher.Constraint("Symmetric", 26, 3, 52, 3, -1, 1),
    Sketcher.Constraint("Symmetric", 25, 3, 53, 3, -1, 1),
    Sketcher.Constraint("Symmetric", 27, 3, 39, 3, -2),
    Sketcher.Constraint("Symmetric", 26, 3, 40, 3, -2),
    Sketcher.Constraint("Symmetric", 25, 3, 41, 3, -2),
    Sketcher.Constraint("Symmetric", 30, 3, 42, 3, -2),
    Sketcher.Constraint("Symmetric", 21, 3, 48, 3, -2),
    Sketcher.Constraint("Symmetric", 49, 3, 50, 3, -2),
    Sketcher.Constraint("Symmetric", 54, 3, 59, 3, -2),
    Sketcher.Constraint("Symmetric", 62, 3, 71, 3, -2),
    Sketcher.Constraint("Symmetric", 78, 3, 79, 3, -2),
    Sketcher.Constraint("Symmetric", 77, 3, 81, 3, -2),
    Sketcher.Constraint("Symmetric", 6, 2, 9, 2, -2),
    Sketcher.Constraint("Symmetric", 4, 2, 11, 2, -2),
    Sketcher.Constraint("Symmetric", 3, 2, 12, 2, -2),
    Sketcher.Constraint("Symmetric", 1, 2, 14, 2, -2),
    Sketcher.Constraint("Symmetric", 20, 2, 22, 2, -2),
    Sketcher.Constraint("Symmetric", 66, 2, 67, 2, -2),
    Sketcher.Constraint("Symmetric", 63, 2, 69, 2, -2),
    Sketcher.Constraint("Symmetric", 74, 2, 75, 2, -2),
    Sketcher.Constraint("PointOnObject", 28, 3, -1),
    Sketcher.Constraint("PointOnObject", 29, 3, -1),
    Sketcher.Constraint("Parallel", 4, 7),
    Sketcher.Constraint("Perpendicular", 7, 9),
    Sketcher.Constraint("Parallel", 9, 12),
    Sketcher.Constraint("Perpendicular", 12, 19),
    Sketcher.Constraint("Perpendicular", 19, 24),
    Sketcher.Constraint("Perpendicular", 24, 61),
    Sketcher.Constraint("Perpendicular", 61, 63),
    Sketcher.Constraint("Parallel", 63, 66),
    Sketcher.Constraint("Perpendicular", 70, 72),
    Sketcher.Constraint("Parallel", 72, 74),
    Sketcher.Constraint("Horizontal", 25, 3, 26, 3),
    Sketcher.Constraint("Horizontal", 53, 3, 54, 3),
    Sketcher.Constraint("Horizontal", 60, 3, 62, 3),
    Sketcher.Constraint("Horizontal", 80, 3, 2, 2),
    Sketcher.Constraint("Horizontal", 13, 2, 19, 2),
    Sketcher.Constraint("Horizontal", 18, 2, 24, 2),
    Sketcher.Constraint("Horizontal", 41, 3, 32, 2),
    Sketcher.Constraint("Horizontal", 23, 2, 64, 2),
    Sketcher.Constraint("Vertical", 25, 3, 28, 3),
    Sketcher.Constraint("Vertical", 26, 3, 29, 3),
    Sketcher.Constraint("Vertical", 30, 3, 49, 3),
    Sketcher.Constraint("Vertical", 32, 3, 55, 3),
    Sketcher.Constraint("Vertical", 34, 3, 57, 3),
    Sketcher.Constraint("Vertical", 77, 3, 79, 3),
    Sketcher.Constraint("Vertical", 46, 3, 6, 2),
    Sketcher.Constraint("Vertical", 0, 2, 7, 2),
    Sketcher.Constraint("Vertical", 8, 2, 15, 2),
    Sketcher.Constraint("Vertical", 5, 2, 18, 2),
    Sketcher.Constraint("Vertical", 54, 3, 19, 2),
    Sketcher.Constraint("Vertical", 68, 2, 73, 2),
    Sketcher.Constraint("Equal", 10, 20),
    Sketcher.Constraint("Equal", 4, 7),
    Sketcher.Constraint("Equal", 0, 16),
    Sketcher.Constraint("Equal", 63, 66),
    Sketcher.Constraint("Diameter", 21, Q("3 mm")),
    Sketcher.Constraint("Diameter", 30, Q("2 mm")),
    Sketcher.Constraint("Diameter", 80, Q("5 mm")),
    Sketcher.Constraint("Radius", 32, Q("2 mm")),
    Sketcher.Constraint("Radius", 60, Q("13 mm")),
    Sketcher.Constraint("Diameter", 26, Q("1.85 mm")),
    Sketcher.Constraint("Diameter", 54, Q("12.85 mm")),
    Sketcher.Constraint("DistanceX", 1, 2, 1, 1, Q("36 mm")),
    Sketcher.Constraint("DistanceX", 3, 1, 3, 2, Q("4 mm")),
    Sketcher.Constraint("DistanceX", 6, 1, 6, 2, Q("8 mm")),
    Sketcher.Constraint("DistanceX", 8, 1, 8, 2, Q("60 mm")),
    Sketcher.Constraint("DistanceX", 35, 2, 35, 1, Q("12 mm")),
    Sketcher.Constraint("DistanceY", 2, 1, 2, 2, Q("16 mm")),
    Sketcher.Constraint("DistanceY", 5, 1, 5, 2, Q("18 mm")),
    Sketcher.Constraint("Angle", 0, Q("160 deg")),
    Sketcher.Constraint("DistanceY", 21, 3, -1, 1, Q("19 mm")),
    Sketcher.Constraint("DistanceX", 25, 3, -1, 1, Q("46 mm")),
    Sketcher.Constraint("DistanceY", -1, 1, 25, 3, Q("15 mm")),
    Sketcher.Constraint("DistanceX", 36, 3, -1, 1, Q("6 mm")),
    Sketcher.Constraint("DistanceY", -1, 1, 55, 3, Q("29 mm")),
    Sketcher.Constraint("DistanceY", 60, 3, -1, 1, Q("7 mm")),
    Sketcher.Constraint("DistanceY", -1, 1, 35, 2, Q("13 mm")),
    Sketcher.Constraint("DistanceY", -1, 1, 27, 3, Q("13.935 mm")),
    Sketcher.Constraint("DistanceX", 17, 2, 17, 1, Q("39.69607 mm")),
    Sketcher.Constraint("DistanceX", -1, 1, 21, 3, Q("35.7465 mm")),
    Sketcher.Constraint("DistanceX", 27, 3, -1, 1, Q("30.7465 mm")),
    Sketcher.Constraint("Distance", 61, Q("9.257351 mm")),
    Sketcher.Constraint("DistanceX", 31, 2, 31, 1, Q("41.939223 mm")),
    Sketcher.Constraint("DistanceX", 32, 3, -1, 1, Q("20.969612 mm")),
    Sketcher.Constraint("DistanceX", -1, 1, 77, 3, Q("3.181981 mm")),
    Sketcher.Constraint("DistanceY", 77, 3, -1, 1, Q("3.818019 mm")),
    Sketcher.Constraint("DistanceY", 78, 3, -1, 1, Q("10.181981 mm")),
    Sketcher.Constraint("DistanceX", 30, 3, -1, 1, Q("12.727922 mm")),
    Sketcher.Constraint("DistanceY", -1, 1, 30, 3, Q("5.727922 mm")),
    Sketcher.Constraint("DistanceY", 49, 3, -1, 1, Q("19.727922 mm")),
])
pad1 = body.newObject("PartDesign::Pad", "Pad")
pad1.Profile = sketch1
pad1.Length = 2
pad1.Reversed = True
doc.recompute()

fillet = body.newObject("PartDesign::Fillet", "Fillet")
fillet.Base = (pad1, edges_at(pad1, [
    (66, 1, -23),
    (66, 1, -7),
    (62, 1, -7),
    (50, 1, 5),
    (50, 1, 23),
    (42, 1, 23),
    (30, 1, 35),
    (-30, 1, 35),
    (-42, 1, 23),
    (-50, 1, 23),
    (-50, 1, 5),
    (-62, 1, -7),
    (-66, 1, -7),
    (50, 1, -7),
    (50, 1, 1),
    (58, 1, -7),
    (-50, 1, 1),
    (-50, 1, -7),
    (-58, 1, -7),
]))
fillet.Radius = 0.75

# Sketch on XZ plane
sketch2 = body.newObject("Sketcher::SketchObject", "Sketch001")
sketch2.AttachmentSupport = (doc.getObject("XZ_Plane"), [""])
sketch2.MapMode = "FlatFace"
sketch2.AttachmentOffset = App.Placement(App.Vector(0, 0, 1.5), App.Rotation())
sketch2.addGeometry([
    Part.Circle(App.Vector(-58, -15, 0), App.Vector(0, 0, 1), 7.5),
    Part.Circle(App.Vector(-58, -15, 0), App.Vector(0, 0, 1), 6.425),
    Part.Circle(App.Vector(58, -15, 0), App.Vector(0, 0, 1), 7.5),
    Part.Circle(App.Vector(58, -15, 0), App.Vector(0, 0, 1), 6.425),
], False)
sketch2.addConstraint([
    Sketcher.Constraint("Coincident", 1, 3, 0, 3),
    Sketcher.Constraint("Coincident", 3, 3, 2, 3),
    Sketcher.Constraint("Equal", 0, 2),
    Sketcher.Constraint("Equal", 1, 3),
    Sketcher.Constraint("Symmetric", 0, 3, 2, 3, -2),
    Sketcher.Constraint("Diameter", 0, Q("15 mm")),
    Sketcher.Constraint("Diameter", 1, Q("12.85 mm")),
    Sketcher.Constraint("DistanceX", 0, 3, -1, 1, Q("58 mm")),
    Sketcher.Constraint("DistanceY", 0, 3, -1, 1, Q("15 mm")),
])
pad2 = body.newObject("PartDesign::Pad", "Pad001")
pad2.Profile = sketch2
pad2.Length = 1.5
pad2.Reversed = True

doc.recompute()
